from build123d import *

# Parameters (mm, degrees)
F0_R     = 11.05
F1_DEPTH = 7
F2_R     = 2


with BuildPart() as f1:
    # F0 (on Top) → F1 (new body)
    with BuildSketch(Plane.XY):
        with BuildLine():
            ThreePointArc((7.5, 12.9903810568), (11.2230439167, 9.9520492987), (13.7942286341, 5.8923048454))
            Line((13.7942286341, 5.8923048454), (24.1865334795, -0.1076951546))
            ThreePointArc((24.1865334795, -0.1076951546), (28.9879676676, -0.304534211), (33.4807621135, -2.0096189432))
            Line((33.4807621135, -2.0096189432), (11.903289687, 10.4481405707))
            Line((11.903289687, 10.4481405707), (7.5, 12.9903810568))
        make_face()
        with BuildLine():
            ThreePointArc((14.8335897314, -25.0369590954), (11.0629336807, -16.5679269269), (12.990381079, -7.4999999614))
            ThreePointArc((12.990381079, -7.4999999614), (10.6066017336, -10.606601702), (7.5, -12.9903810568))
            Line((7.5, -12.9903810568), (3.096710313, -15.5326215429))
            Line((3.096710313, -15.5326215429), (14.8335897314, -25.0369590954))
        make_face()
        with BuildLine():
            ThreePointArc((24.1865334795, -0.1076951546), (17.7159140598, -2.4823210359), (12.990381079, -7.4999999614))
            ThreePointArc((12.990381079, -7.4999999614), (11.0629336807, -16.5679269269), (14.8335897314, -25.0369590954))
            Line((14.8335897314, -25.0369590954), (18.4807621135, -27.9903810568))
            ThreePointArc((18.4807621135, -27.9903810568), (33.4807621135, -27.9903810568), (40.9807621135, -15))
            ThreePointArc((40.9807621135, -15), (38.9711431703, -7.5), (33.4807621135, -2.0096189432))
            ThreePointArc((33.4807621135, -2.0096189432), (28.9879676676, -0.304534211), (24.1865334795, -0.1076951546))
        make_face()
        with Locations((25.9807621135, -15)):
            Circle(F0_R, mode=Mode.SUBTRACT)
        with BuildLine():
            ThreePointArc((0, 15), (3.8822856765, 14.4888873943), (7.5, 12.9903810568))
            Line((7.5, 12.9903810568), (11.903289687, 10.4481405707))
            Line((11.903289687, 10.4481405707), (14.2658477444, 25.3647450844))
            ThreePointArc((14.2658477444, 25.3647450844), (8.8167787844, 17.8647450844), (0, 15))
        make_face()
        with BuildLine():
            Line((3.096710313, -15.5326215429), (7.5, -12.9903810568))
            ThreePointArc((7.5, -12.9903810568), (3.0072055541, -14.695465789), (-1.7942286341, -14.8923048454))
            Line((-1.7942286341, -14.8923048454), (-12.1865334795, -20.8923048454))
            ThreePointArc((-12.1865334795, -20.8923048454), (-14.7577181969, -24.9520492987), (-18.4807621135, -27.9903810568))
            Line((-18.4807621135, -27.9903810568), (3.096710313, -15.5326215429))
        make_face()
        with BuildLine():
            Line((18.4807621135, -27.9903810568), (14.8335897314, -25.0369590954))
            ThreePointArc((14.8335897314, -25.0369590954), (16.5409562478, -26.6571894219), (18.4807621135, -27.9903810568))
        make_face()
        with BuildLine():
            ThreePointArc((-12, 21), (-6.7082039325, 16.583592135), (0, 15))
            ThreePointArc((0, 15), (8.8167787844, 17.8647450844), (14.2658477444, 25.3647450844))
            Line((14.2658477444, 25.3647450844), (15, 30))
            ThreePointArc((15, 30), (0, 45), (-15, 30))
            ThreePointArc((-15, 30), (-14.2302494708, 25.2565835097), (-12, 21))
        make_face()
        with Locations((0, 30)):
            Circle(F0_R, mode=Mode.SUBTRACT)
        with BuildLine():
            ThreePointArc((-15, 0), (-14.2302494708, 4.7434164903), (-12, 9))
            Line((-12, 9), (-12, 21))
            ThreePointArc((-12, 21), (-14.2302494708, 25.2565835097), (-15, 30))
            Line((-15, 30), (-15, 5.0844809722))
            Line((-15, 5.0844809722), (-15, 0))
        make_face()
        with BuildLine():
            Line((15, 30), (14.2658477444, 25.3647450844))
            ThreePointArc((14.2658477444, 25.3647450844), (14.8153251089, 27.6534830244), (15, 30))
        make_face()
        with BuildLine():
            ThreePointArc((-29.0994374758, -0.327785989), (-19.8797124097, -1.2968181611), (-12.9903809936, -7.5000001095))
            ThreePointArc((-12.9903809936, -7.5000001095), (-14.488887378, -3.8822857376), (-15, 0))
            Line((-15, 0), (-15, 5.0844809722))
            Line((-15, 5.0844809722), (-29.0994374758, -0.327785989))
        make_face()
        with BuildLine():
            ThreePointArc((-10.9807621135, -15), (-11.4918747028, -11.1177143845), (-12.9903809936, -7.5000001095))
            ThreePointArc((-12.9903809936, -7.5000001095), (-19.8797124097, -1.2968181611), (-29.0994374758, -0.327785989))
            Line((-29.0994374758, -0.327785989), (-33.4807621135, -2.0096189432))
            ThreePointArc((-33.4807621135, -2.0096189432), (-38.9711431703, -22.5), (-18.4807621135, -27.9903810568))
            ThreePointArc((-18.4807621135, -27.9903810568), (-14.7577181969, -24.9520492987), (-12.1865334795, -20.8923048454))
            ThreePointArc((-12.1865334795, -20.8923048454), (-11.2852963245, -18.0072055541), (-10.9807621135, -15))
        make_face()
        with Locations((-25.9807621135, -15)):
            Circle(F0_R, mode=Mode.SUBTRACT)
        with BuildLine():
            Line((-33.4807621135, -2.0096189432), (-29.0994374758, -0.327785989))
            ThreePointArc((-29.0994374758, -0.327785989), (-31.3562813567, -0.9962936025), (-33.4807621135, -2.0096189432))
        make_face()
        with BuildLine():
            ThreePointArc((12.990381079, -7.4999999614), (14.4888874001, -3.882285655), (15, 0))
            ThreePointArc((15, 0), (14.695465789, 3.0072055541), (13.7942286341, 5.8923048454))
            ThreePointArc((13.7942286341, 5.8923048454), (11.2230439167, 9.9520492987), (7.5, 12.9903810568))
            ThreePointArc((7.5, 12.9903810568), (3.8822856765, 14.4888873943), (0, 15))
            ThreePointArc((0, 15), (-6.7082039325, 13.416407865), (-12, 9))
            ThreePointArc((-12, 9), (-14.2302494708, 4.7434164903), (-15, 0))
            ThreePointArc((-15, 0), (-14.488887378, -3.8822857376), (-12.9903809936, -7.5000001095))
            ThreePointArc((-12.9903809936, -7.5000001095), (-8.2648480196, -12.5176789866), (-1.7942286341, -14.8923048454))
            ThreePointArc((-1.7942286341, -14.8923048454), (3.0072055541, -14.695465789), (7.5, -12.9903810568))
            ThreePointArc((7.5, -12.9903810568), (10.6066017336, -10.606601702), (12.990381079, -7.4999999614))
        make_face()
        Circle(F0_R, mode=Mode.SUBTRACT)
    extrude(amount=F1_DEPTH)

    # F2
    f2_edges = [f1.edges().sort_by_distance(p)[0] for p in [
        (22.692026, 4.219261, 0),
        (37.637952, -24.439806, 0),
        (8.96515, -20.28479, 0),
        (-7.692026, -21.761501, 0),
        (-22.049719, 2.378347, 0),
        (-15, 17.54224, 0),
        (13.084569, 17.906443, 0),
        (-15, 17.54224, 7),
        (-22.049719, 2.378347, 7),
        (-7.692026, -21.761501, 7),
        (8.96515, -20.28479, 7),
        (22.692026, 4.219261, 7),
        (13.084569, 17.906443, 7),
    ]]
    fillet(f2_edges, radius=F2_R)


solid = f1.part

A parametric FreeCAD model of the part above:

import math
import FreeCAD as App
import Part
import Sketcher
from FreeCAD import Vector
Q = App.Units.Quantity


def edges_at(feature, points):
    """Names of the edges that pass closest to the given points."""
    edges = feature.Shape.Edges
    near = lambda p: min(range(len(edges)), key=lambda i: edges[i].distToShape(Part.Vertex(*p))[0])
    return sorted({f"Edge{near(p) + 1}" for p in points})

doc = App.newDocument("Part")
body = doc.addObject("PartDesign::Body", "Body")

# Sketch on XY plane
sketch1 = doc.addObject("Sketcher::SketchObject", "Sketch")
body.addObject(sketch1)
sketch1.AttachmentSupport = (doc.XY_Plane, [""])
sketch1.MapMode = "FlatFace"
sketch1.addGeometry([
    Part.LineSegment(Vector(-18.480762, -27.990381, 0), Vector(3.09671, -15.532622, 0)),  # 0
    Part.LineSegment(Vector(3.09671, -15.532622, 0), Vector(14.83359, -25.036959, 0)),  # 1
    Part.ArcOfCircle(Part.Circle(Vector(25.980762, -15, 0), Vector(0, 0, 1), 15), math.radians(-138), math.radians(-120)),  # 2
    Part.ArcOfCircle(Part.Circle(Vector(25.980762, -15, 0), Vector(0, 0, 1), 15), math.radians(-120), math.radians(0)),  # 3
    Part.ArcOfCircle(Part.Circle(Vector(25.980762, -15, 0), Vector(0, 0, 1), 15), math.radians(0), math.radians(60)),  # 4
    Part.LineSegment(Vector(33.480762, -2.009619, 0), Vector(11.90329, 10.448141, 0)),  # 5
    Part.LineSegment(Vector(11.90329, 10.448141, 0), Vector(14.265848, 25.364745, 0)),  # 6
    Part.ArcOfCircle(Part.Circle(Vector(0, 30, 0), Vector(0, 0, 1), 15), math.radians(-18), math.radians(0)),  # 7
    Part.ArcOfCircle(Part.Circle(Vector(0, 30, 0), Vector(0, 0, 1), 15), math.radians(0), math.radians(180)),  # 8
    Part.LineSegment(Vector(-15, 30, 0), Vector(-15, 5.084481, 0)),  # 9
    Part.LineSegment(Vector(-15, 5.084481, 0), Vector(-29.099437, -0.327786, 0)),  # 10
    Part.ArcOfCircle(Part.Circle(Vector(-25.980762, -15, 0), Vector(0, 0, 1), 15), math.radians(102), math.radians(120)),  # 11
    Part.ArcOfCircle(Part.Circle(Vector(-25.980762, -15, 0), Vector(0, 0, 1), 15), math.radians(120), math.radians(300)),  # 12
    Part.Circle(Vector(-25.980762, -15, 0), Vector(0, 0, 1), 11.05),  # 13
    Part.LineSegment(Vector(-1.794229, -14.892305, 0), Vector(-12.186533, -20.892305, 0)),  # 14
    Part.ArcOfCircle(Part.Circle(Vector(-25.980762, -15, 0), Vector(0, 0, 1), 15), math.radians(-23.130102), math.radians(0)),  # 15
    Part.ArcOfCircle(Part.Circle(Vector(-25.980762, -15, 0), Vector(0, 0, 1), 15), math.radians(0), math.radians(30)),  # 16
    Part.ArcOfCircle(Part.Circle(Vector(0, 0, 0), Vector(0, 0, 1), 15), math.radians(-150), math.radians(-96.869898)),  # 17
    Part.Circle(Vector(0, 0, 0), Vector(0, 0, 1), 11.05),  # 18
    Part.Circle(Vector(25.980762, -15, 0), Vector(0, 0, 1), 11.05),  # 19
    Part.LineSegment(Vector(13.794229, 5.892305, 0), Vector(24.186533, -0.107695, 0)),  # 20
    Part.ArcOfCircle(Part.Circle(Vector(25.980762, -15, 0), Vector(0, 0, 1), 15), math.radians(96.869898), math.radians(150)),  # 21
    Part.ArcOfCircle(Part.Circle(Vector(0, 0, 0), Vector(0, 0, 1), 15), math.radians(-30), math.radians(0)),  # 22
    Part.ArcOfCircle(Part.Circle(Vector(0, 0, 0), Vector(0, 0, 1), 15), math.radians(0), math.radians(23.130102)),  # 23
    Part.LineSegment(Vector(-12, 9, 0), Vector(-12, 21, 0)),  # 24
    Part.ArcOfCircle(Part.Circle(Vector(0, 30, 0), Vector(0, 0, 1), 15), math.radians(-143.130102), math.radians(-90)),  # 25
    Part.ArcOfCircle(Part.Circle(Vector(0, 0, 0), Vector(0, 0, 1), 15), math.radians(90), math.radians(143.130102)),  # 26
    Part.Circle(Vector(0, 30, 0), Vector(0, 0, 1), 11.05),  # 27
], False)
sketch1.addConstraint([
    Sketcher.Constraint("Coincident", 0, 2, 1, 1),
    Sketcher.Constraint("Coincident", 1, 2, 2, 1),
    Sketcher.Constraint("Tangent", 2, 2, 3, 1),
    Sketcher.Constraint("Tangent", 3, 2, 4, 1),
    Sketcher.Constraint("Tangent", 4, 2, 5, 1),
    Sketcher.Constraint("Coincident", 5, 2, 6, 1),
    Sketcher.Constraint("Coincident", 6, 2, 7, 1),
    Sketcher.Constraint("Tangent", 7, 2, 8, 1),
    Sketcher.Constraint("Tangent", 8, 2, 9, 1),
    Sketcher.Constraint("Coincident", 9, 2, 10, 1),
    Sketcher.Constraint("Coincident", 10, 2, 11, 1),
    Sketcher.Constraint("Tangent", 11, 2, 12, 1),
    Sketcher.Constraint("Tangent", 12, 2, 0, 1),
    Sketcher.Constraint("Coincident", 14, 2, 15, 1),
    Sketcher.Constraint("Tangent", 15, 2, 16, 1),
    Sketcher.Constraint("Tangent", 16, 2, 17, 1),
    Sketcher.Constraint("Coincident", 17, 2, 14, 1),
    Sketcher.Constraint("Coincident", 20, 2, 21, 1),
    Sketcher.Constraint("Tangent", 21, 2, 22, 1),
    Sketcher.Constraint("Tangent", 22, 2, 23, 1),
    Sketcher.Constraint("Coincident", 23, 2, 20, 1),
    Sketcher.Constraint("Coincident", 24, 2, 25, 1),
    Sketcher.Constraint("Tangent", 25, 2, 26, 1),
    Sketcher.Constraint("Coincident", 26, 2, 24, 1),
    Sketcher.Constraint("Vertical", 9),
    Sketcher.Constraint("Vertical", 24),
    Sketcher.Constraint("Coincident", 17, 3, -1, 1),
    Sketcher.Constraint("Coincident", 18, 3, -1, 1),
    Sketcher.Constraint("Coincident", 22, 3, -1, 1),
    Sketcher.Constraint("Coincident", 26, 3, -1, 1),
    Sketcher.Constraint("Coincident", 4, 3, 2, 3),
    Sketcher.Constraint("Coincident", 13, 3, 11, 3),
    Sketcher.Constraint("Coincident", 15, 3, 11, 3),
    Sketcher.Constraint("Coincident", 19, 3, 2, 3),
    Sketcher.Constraint("Coincident", 21, 3, 2, 3),
    Sketcher.Constraint("Coincident", 25, 3, 7, 3),
    Sketcher.Constraint("Coincident", 27, 3, 7, 3),
    Sketcher.Constraint("Equal", 4, 7),
    Sketcher.Constraint("Equal", 7, 8),
    Sketcher.Constraint("Equal", 8, 11),
    Sketcher.Constraint("Equal", 11, 12),
    Sketcher.Constraint("Equal", 12, 15),
    Sketcher.Constraint("Equal", 15, 16),
    Sketcher.Constraint("Equal", 16, 17),
    Sketcher.Constraint("Equal", 13, 18),
    Sketcher.Constraint("Equal", 18, 19),
    Sketcher.Constraint("Equal", 17, 21),
    Sketcher.Constraint("Equal", 21, 22),
    Sketcher.Constraint("Equal", 22, 23),
    Sketcher.Constraint("Equal", 23, 25),
    Sketcher.Constraint("Equal", 25, 26),
    Sketcher.Constraint("Equal", 19, 27),
    Sketcher.Constraint("Symmetric", 7, 2, 8, 2, -2),
    Sketcher.Constraint("Symmetric", 4, 2, 11, 2, -2),
    Sketcher.Constraint("PointOnObject", 22, 2, -1),
    Sketcher.Constraint("Parallel", 0, 14),
    Sketcher.Constraint("Parallel", 5, 20),
    Sketcher.Constraint("Horizontal", 21, 3, 3, 2),
    Sketcher.Constraint("Horizontal", 2, 2, 12, 2),
    Sketcher.Constraint("Horizontal", 3, 2, 15, 2),
    Sketcher.Constraint("Equal", 0, 5),
    Sketcher.Constraint("Equal", 1, 6),
    Sketcher.Constraint("Equal", 6, 10),
    Sketcher.Constraint("Equal", 14, 20),
    Sketcher.Constraint("Radius", 2, 15.0),
    Sketcher.Constraint("Diameter", 13, 22.1),
    Sketcher.Constraint("DistanceY", 24, 1, 24, 2, 12.0),
    Sketcher.Constraint("Angle", 0, Q("30 deg")),
    Sketcher.Constraint("Angle", 1, Q("-39 deg")),
    Sketcher.Constraint("Angle", 5, Q("150 deg")),
    Sketcher.Constraint("Angle", 6, Q("81 deg")),
    Sketcher.Constraint("Angle", 10, Q("-159 deg")),
    Sketcher.Constraint("Distance", 14, 12.0),
    Sketcher.Constraint("DistanceY", 9, 2, 9, 1, 24.915519),
])
pad1 = doc.addObject("PartDesign::Pad", "Pad")
body.addObject(pad1)
pad1.Profile = sketch1
pad1.Length = 7
doc.recompute()

fillet = doc.addObject("PartDesign::Fillet", "Fillet")
body.addObject(fillet)
fillet.Base = (pad1, edges_at(pad1, [
    (22.692, 4.219, 0),
    (33.481, -27.99, 0),
    (8.965, -20.285, 0),
    (-7.692, -21.762, 0),
    (-22.05, 2.378, 0),
    (-15, 17.542, 0),
    (13.085, 17.906, 0),
    (-15, 17.542, 7),
    (-22.05, 2.378, 7),
    (-7.692, -21.762, 7),
    (8.965, -20.285, 7),
    (22.692, 4.219, 7),
    (13.085, 17.906, 7),
]))
fillet.Radius = 2

doc.recompute()
